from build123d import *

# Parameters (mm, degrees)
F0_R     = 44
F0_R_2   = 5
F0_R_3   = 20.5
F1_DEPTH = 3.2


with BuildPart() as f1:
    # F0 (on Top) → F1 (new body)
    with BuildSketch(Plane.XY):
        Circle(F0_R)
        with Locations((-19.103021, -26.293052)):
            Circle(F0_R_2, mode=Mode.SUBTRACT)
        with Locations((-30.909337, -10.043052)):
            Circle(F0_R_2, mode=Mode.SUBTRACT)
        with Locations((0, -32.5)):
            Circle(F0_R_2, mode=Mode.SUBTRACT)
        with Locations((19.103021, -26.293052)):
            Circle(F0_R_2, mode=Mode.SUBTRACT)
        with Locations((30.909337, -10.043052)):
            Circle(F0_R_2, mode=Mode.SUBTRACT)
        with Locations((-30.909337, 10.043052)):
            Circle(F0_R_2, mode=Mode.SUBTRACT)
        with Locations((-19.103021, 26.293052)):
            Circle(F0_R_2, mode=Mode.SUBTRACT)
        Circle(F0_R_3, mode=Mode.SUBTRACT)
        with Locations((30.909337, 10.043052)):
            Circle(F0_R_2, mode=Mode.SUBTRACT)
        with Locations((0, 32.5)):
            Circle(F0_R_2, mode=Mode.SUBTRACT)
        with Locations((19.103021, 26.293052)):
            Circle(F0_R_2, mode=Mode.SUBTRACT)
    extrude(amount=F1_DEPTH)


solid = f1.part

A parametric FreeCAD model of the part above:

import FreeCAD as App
import Part
import Sketcher
Q = App.Units.Quantity

doc = App.newDocument("Part")
body = doc.addObject("PartDesign::Body", "Body")

# Sketch on XY plane
sketch1 = body.newObject("Sketcher::SketchObject", "Sketch")
sketch1.AttachmentSupport = (doc.getObject("XY_Plane"), [""])
sketch1.MapMode = "FlatFace"
sketch1.addGeometry([
    Part.Circle(App.Vector(0, 0, 0), App.Vector(0, 0, 1), 44),  # 0
    Part.Circle(App.Vector(-19, -26, 0), App.Vector(0, 0, 1), 5),  # 1
    Part.Circle(App.Vector(0, -32, 0), App.Vector(0, 0, 1), 5),  # 2
    Part.Circle(App.Vector(-31, -10, 0), App.Vector(0, 0, 1), 5),  # 3
    Part.Circle(App.Vector(19, -26, 0), App.Vector(0, 0, 1), 5),  # 4
    Part.Circle(App.Vector(31, -10, 0), App.Vector(0, 0, 1), 5),  # 5
    Part.Circle(App.Vector(-31, 10, 0), App.Vector(0, 0, 1), 5),  # 6
    Part.Circle(App.Vector(0, 0, 0), App.Vector(0, 0, 1), 20),  # 7
    Part.Circle(App.Vector(-19, 26, 0), App.Vector(0, 0, 1), 5),  # 8
    Part.Circle(App.Vector(0, 32, 0), App.Vector(0, 0, 1), 5),  # 9
    Part.Circle(App.Vector(31, 10, 0), App.Vector(0, 0, 1), 5),  # 10
    Part.Circle(App.Vector(19, 26, 0), App.Vector(0, 0, 1), 5),  # 11
], False)
sketch1.addConstraint([
    Sketcher.Constraint("Coincident", 0, 3, -1, 1),
    Sketcher.Constraint("Coincident", 7, 3, -1, 1),
    Sketcher.Constraint("Equal", 1, 2),
    Sketcher.Constraint("Equal", 2, 3),
    Sketcher.Constraint("Equal", 3, 4),
    Sketcher.Constraint("Equal", 4, 5),
    Sketcher.Constraint("Equal", 5, 6),
    Sketcher.Constraint("Equal", 6, 8),
    Sketcher.Constraint("Equal", 8, 9),
    Sketcher.Constraint("Equal", 9, 10),
    Sketcher.Constraint("Equal", 10, 11),
    Sketcher.Constraint("Symmetric", 5, 3, 6, 3, -1, 1),
    Sketcher.Constraint("Symmetric", 4, 3, 8, 3, -1, 1),
    Sketcher.Constraint("Symmetric", 2, 3, 9, 3, -1, 1),
    Sketcher.Constraint("Symmetric", 3, 3, 10, 3, -1, 1),
    Sketcher.Constraint("Symmetric", 1, 3, 11, 3, -1, 1),
    Sketcher.Constraint("Symmetric", 1, 3, 4, 3, -2),
    Sketcher.Constraint("Symmetric", 3, 3, 5, 3, -2),
    Sketcher.Constraint("PointOnObject", 2, 3, -2),
    Sketcher.Constraint("Diameter", 0, Q("88 mm")),
    Sketcher.Constraint("Diameter", 1, Q("10 mm")),
    Sketcher.Constraint("Diameter", 7, Q("41 mm")),
    Sketcher.Constraint("DistanceY", 2, 3, -1, 1, Q("32.5 mm")),
    Sketcher.Constraint("DistanceY", 1, 3, 3, 3, Q("16.25 mm")),
    Sketcher.Constraint("DistanceX", 1, 3, -1, 1, Q("19.103021 mm")),
    Sketcher.Constraint("DistanceY", 1, 3, -1, 1, Q("26.293052 mm")),
    Sketcher.Constraint("DistanceX", 3, 3, -1, 1, Q("30.909337 mm")),
])
pad1 = body.newObject("PartDesign::Pad", "Pad")
pad1.Profile = sketch1
pad1.Length = 3.2

doc.recompute()
